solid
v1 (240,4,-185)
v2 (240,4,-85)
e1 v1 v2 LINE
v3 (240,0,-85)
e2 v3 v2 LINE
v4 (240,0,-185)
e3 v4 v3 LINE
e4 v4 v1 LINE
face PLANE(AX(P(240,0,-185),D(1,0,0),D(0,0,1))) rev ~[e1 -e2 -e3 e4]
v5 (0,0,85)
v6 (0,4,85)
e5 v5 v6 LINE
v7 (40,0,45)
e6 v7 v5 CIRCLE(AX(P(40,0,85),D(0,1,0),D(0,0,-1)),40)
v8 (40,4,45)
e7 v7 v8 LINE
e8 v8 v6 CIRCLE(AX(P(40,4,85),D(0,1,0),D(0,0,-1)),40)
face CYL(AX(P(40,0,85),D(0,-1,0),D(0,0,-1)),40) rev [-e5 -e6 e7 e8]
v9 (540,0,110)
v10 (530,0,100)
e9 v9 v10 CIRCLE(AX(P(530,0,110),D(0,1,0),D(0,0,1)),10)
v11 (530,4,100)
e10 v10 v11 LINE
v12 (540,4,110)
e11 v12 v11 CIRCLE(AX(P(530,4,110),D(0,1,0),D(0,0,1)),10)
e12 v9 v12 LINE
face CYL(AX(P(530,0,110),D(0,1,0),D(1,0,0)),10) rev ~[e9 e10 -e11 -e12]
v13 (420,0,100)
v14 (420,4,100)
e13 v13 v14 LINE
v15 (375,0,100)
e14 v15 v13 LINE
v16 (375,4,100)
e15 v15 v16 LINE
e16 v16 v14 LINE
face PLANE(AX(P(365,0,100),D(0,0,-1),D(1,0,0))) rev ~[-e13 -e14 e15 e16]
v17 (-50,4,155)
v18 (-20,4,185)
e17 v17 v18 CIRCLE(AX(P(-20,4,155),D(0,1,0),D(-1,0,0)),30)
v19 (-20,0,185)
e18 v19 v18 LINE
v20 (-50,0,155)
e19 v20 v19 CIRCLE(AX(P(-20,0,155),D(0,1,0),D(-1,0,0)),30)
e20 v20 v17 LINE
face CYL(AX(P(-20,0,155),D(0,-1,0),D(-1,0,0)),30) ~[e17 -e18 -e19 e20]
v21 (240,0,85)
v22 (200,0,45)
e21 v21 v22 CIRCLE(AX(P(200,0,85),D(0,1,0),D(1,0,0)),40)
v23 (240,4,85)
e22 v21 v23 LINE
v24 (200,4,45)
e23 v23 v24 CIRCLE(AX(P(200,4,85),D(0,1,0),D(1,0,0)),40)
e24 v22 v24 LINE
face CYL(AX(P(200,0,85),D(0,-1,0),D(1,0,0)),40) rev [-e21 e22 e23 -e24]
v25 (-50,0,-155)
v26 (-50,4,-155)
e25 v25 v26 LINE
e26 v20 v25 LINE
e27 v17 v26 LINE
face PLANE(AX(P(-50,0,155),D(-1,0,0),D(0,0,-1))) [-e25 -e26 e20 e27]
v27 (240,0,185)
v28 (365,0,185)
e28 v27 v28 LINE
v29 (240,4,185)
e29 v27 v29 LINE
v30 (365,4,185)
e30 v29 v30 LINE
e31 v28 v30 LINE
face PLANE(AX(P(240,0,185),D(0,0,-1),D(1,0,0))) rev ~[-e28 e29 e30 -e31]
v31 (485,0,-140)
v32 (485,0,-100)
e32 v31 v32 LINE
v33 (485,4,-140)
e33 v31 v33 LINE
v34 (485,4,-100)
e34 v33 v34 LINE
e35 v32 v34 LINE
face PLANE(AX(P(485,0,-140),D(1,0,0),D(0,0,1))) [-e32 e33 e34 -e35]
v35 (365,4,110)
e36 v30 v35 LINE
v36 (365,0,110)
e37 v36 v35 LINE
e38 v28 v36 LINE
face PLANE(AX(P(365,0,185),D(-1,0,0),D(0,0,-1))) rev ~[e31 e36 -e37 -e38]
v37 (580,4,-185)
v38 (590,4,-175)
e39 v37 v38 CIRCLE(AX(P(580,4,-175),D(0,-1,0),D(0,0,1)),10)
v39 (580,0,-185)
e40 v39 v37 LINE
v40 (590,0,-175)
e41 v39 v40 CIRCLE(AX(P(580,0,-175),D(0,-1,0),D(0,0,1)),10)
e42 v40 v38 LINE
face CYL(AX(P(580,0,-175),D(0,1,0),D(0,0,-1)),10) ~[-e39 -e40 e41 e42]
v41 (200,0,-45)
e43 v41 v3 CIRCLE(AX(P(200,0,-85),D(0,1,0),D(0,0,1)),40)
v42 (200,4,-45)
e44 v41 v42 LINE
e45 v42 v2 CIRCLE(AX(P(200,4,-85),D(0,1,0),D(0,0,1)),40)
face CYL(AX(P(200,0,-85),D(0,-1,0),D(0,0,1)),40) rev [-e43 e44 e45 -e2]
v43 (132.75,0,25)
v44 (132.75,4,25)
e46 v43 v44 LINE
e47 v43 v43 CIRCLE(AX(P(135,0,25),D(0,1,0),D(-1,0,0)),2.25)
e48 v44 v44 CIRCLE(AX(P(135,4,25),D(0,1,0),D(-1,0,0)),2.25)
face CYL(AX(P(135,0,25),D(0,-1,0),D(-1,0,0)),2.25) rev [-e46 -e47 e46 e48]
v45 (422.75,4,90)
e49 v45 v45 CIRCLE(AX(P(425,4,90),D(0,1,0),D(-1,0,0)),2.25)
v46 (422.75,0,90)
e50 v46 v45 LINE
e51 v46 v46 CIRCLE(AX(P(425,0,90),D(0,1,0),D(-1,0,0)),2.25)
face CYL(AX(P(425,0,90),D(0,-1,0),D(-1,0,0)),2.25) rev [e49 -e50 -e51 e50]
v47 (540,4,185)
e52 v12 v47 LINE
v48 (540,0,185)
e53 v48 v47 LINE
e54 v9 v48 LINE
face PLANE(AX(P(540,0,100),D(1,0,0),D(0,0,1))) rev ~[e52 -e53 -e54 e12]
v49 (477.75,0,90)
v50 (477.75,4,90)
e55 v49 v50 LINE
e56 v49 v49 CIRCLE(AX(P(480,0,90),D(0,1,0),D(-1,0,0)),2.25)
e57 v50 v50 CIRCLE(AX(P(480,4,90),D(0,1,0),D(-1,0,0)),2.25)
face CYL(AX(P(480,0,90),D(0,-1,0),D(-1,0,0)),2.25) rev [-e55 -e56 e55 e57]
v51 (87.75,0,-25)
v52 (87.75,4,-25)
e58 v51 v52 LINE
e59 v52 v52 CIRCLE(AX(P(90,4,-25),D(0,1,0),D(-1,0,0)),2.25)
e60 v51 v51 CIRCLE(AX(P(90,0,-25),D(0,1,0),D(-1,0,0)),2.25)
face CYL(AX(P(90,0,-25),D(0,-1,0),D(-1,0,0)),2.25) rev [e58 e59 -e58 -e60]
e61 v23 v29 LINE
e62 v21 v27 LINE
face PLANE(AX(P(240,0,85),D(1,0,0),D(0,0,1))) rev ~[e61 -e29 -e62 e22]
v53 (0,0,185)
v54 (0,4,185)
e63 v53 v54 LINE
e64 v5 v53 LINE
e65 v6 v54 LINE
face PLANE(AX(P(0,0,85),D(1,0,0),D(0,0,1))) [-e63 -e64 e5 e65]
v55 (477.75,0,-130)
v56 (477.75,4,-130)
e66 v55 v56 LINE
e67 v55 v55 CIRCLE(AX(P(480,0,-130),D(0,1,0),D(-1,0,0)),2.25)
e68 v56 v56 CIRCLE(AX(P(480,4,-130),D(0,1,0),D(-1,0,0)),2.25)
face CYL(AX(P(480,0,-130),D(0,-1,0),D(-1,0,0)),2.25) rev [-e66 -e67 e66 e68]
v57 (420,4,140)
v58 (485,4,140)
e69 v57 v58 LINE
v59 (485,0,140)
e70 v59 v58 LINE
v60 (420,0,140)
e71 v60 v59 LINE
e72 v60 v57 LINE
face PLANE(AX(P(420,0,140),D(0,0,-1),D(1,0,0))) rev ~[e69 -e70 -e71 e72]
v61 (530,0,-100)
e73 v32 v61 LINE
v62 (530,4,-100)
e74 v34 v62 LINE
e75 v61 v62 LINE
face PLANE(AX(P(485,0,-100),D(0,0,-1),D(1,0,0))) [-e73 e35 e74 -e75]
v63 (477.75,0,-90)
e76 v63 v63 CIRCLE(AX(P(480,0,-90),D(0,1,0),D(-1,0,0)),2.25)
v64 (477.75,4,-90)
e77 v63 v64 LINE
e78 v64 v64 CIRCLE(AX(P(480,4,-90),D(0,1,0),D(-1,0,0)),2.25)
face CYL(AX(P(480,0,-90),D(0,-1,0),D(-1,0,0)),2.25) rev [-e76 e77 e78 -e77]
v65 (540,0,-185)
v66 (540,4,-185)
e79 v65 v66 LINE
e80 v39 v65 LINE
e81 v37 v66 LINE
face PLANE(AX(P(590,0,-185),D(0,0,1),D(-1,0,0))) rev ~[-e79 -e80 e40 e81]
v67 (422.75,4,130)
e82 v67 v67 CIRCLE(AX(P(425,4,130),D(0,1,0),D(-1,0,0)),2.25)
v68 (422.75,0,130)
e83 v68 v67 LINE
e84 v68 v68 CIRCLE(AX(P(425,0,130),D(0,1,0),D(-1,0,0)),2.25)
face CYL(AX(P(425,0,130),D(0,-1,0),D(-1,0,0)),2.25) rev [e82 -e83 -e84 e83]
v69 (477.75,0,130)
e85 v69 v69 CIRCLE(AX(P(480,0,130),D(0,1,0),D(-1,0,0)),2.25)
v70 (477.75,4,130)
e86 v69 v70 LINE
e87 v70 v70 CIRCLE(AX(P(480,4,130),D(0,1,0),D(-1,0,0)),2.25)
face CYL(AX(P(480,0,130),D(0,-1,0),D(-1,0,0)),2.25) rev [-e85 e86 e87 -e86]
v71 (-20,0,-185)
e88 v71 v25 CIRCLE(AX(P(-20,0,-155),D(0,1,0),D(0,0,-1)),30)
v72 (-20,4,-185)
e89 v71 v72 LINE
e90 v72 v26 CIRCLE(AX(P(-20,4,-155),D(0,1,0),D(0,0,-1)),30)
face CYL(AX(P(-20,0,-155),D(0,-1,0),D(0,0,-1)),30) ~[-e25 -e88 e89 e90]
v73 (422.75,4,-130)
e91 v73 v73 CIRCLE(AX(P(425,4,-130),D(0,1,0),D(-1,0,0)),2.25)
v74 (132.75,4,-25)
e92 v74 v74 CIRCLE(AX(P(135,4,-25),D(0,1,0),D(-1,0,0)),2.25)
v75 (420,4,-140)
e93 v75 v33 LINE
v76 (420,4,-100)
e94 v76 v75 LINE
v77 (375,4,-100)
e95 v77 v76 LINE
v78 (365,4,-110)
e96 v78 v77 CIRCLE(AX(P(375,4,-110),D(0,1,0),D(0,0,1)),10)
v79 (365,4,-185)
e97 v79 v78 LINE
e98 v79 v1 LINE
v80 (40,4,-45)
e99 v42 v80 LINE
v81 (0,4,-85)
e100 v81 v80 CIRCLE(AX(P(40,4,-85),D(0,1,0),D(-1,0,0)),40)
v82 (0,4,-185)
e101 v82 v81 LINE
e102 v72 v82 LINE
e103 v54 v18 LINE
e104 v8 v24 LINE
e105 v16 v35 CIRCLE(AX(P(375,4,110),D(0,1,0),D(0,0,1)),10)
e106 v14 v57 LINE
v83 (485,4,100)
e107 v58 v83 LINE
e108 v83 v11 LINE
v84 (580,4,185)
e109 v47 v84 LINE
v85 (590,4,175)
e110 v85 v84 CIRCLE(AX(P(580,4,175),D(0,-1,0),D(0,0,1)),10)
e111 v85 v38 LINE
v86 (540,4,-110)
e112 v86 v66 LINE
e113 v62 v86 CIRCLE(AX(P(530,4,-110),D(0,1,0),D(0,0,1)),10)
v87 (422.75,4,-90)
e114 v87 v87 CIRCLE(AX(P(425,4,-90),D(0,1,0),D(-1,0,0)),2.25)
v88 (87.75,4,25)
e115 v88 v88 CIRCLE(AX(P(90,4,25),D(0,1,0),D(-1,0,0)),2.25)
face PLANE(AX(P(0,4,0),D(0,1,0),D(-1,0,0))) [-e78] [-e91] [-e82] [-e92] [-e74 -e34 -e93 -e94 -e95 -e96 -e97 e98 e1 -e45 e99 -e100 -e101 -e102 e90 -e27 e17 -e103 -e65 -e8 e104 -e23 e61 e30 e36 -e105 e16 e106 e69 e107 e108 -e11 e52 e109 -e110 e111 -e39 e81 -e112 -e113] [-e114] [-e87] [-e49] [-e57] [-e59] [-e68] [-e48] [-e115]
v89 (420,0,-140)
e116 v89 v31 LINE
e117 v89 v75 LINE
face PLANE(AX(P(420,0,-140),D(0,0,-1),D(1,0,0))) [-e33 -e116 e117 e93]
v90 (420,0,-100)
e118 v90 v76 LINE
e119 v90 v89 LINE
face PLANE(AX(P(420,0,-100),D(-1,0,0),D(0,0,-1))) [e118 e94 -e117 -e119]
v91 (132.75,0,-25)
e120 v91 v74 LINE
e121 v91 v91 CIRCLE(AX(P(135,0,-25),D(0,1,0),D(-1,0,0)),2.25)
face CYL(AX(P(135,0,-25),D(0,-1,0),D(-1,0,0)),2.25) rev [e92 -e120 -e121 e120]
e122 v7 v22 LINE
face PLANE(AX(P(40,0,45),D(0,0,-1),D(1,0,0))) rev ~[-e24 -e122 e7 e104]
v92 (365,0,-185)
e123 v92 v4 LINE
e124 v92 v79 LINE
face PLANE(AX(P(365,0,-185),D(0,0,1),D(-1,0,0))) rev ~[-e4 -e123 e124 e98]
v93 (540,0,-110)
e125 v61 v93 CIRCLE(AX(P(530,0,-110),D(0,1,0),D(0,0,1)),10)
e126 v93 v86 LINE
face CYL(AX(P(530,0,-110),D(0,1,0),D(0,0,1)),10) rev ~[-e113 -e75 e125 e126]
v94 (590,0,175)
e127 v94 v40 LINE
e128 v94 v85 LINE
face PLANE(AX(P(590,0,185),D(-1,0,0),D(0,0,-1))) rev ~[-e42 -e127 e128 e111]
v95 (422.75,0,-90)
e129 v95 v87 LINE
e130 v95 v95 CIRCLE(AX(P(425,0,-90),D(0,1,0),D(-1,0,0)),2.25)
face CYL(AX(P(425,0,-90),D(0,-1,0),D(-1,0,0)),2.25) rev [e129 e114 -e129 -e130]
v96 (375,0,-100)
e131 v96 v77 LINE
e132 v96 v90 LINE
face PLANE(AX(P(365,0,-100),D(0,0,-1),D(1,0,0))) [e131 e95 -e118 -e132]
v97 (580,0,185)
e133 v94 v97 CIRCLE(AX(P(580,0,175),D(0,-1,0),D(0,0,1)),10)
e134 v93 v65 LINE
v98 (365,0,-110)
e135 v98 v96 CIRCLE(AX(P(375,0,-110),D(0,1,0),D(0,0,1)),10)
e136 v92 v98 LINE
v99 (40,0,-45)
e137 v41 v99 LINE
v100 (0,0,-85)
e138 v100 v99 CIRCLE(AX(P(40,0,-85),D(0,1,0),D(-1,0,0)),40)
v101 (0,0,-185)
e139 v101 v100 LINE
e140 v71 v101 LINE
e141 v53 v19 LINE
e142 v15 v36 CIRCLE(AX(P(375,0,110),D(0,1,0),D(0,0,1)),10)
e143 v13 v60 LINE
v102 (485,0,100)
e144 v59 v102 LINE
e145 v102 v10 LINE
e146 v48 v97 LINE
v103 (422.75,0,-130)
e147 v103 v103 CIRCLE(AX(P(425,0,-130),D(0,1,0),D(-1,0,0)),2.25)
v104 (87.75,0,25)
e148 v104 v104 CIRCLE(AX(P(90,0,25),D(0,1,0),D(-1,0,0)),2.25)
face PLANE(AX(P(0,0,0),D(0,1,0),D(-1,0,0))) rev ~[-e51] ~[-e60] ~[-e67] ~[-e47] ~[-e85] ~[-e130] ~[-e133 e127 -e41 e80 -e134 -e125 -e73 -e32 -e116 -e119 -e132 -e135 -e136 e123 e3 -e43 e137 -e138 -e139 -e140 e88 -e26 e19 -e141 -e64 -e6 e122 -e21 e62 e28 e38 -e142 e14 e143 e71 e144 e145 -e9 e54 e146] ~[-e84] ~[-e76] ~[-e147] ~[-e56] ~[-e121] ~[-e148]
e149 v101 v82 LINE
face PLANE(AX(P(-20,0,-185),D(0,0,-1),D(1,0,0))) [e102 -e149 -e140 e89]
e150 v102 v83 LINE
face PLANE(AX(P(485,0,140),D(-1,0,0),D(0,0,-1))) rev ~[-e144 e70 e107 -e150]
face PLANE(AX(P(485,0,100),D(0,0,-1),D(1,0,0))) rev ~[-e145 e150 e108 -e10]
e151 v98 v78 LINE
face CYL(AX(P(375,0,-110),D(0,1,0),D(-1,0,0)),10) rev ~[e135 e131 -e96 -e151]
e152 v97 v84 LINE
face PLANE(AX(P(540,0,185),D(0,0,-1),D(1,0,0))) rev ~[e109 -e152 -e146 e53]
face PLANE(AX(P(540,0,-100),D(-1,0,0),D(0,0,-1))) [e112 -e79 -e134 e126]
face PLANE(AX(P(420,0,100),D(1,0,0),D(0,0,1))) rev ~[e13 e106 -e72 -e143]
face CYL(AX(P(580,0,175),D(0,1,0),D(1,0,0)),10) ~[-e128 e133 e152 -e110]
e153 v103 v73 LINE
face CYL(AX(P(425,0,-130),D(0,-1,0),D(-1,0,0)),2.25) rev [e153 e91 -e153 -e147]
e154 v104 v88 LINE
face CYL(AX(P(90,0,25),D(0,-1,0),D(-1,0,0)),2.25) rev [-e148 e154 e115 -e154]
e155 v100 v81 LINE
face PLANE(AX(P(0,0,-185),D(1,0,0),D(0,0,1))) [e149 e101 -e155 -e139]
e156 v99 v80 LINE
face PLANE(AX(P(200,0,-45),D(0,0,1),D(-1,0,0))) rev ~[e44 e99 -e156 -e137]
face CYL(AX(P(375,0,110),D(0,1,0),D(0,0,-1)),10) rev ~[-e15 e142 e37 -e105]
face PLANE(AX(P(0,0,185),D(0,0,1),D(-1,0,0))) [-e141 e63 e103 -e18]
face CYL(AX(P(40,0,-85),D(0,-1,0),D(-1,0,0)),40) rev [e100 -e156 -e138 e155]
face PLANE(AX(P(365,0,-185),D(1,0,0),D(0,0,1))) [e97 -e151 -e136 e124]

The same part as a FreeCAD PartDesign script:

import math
import FreeCAD as App
import Part
import Sketcher

V = App.Vector
Q = App.Units.Quantity


def edges_at(feature, points):
    """Names of the edges that pass closest to the given points."""
    edges = feature.Shape.Edges
    near = lambda p: min(range(len(edges)), key=lambda i: edges[i].distToShape(Part.Vertex(*p))[0])
    return sorted({f"Edge{near(p) + 1}" for p in points})

doc = App.newDocument("Part")
body = doc.addObject("PartDesign::Body", "Body")

sketch1 = doc.addObject("Sketcher::SketchObject", "Sketch")
body.addObject(sketch1)
sketch1.AttachmentSupport = (doc.XZ_Plane, [""])
sketch1.MapMode = "FlatFace"
sketch1.addGeometry([
    Part.ArcOfCircle(Part.Circle(V(40, 85, 0), V(0, 0, 1), 40), math.radians(180), math.radians(270)),
    Part.LineSegment(V(40, 45, 0), V(200, 45, 0)),
    Part.ArcOfCircle(Part.Circle(V(200, 85, 0), V(0, 0, 1), 40), math.radians(-90), math.radians(0)),
    Part.LineSegment(V(240, 85, 0), V(240, 185, 0)),
    Part.LineSegment(V(240, 185, 0), V(365, 185, 0)),
    Part.LineSegment(V(365, 185, 0), V(365, 100, 0)),
    Part.LineSegment(V(365, 100, 0), V(420, 100, 0)),
    Part.LineSegment(V(420, 100, 0), V(420, 140, 0)),
    Part.LineSegment(V(420, 140, 0), V(485, 140, 0)),
    Part.LineSegment(V(485, 140, 0), V(485, 100, 0)),
    Part.LineSegment(V(485, 100, 0), V(540, 100, 0)),
    Part.LineSegment(V(540, 100, 0), V(540, 185, 0)),
    Part.LineSegment(V(540, 185, 0), V(590, 185, 0)),
    Part.LineSegment(V(590, 185, 0), V(590, -185, 0)),
    Part.LineSegment(V(590, -185, 0), V(540, -185, 0)),
    Part.LineSegment(V(540, -185, 0), V(540, -100, 0)),
    Part.LineSegment(V(540, -100, 0), V(485, -100, 0)),
    Part.LineSegment(V(485, -100, 0), V(485, -140, 0)),
    Part.LineSegment(V(485, -140, 0), V(420, -140, 0)),
    Part.LineSegment(V(420, -140, 0), V(420, -100, 0)),
    Part.LineSegment(V(420, -100, 0), V(365, -100, 0)),
    Part.LineSegment(V(365, -100, 0), V(365, -185, 0)),
    Part.LineSegment(V(365, -185, 0), V(240, -185, 0)),
    Part.LineSegment(V(240, -185, 0), V(240, -85, 0)),
    Part.ArcOfCircle(Part.Circle(V(200, -85, 0), V(0, 0, 1), 40), math.radians(0), math.radians(90)),
    Part.LineSegment(V(200, -45, 0), V(40, -45, 0)),
    Part.ArcOfCircle(Part.Circle(V(40, -85, 0), V(0, 0, 1), 40), math.radians(90), math.radians(180)),
    Part.LineSegment(V(0, -85, 0), V(0, -185, 0)),
    Part.LineSegment(V(0, -185, 0), V(-20, -185, 0)),
    Part.ArcOfCircle(Part.Circle(V(-20, -155, 0), V(0, 0, 1), 30), math.radians(180), math.radians(270)),
    Part.LineSegment(V(-50, -155, 0), V(-50, 155, 0)),
    Part.ArcOfCircle(Part.Circle(V(-20, 155, 0), V(0, 0, 1), 30), math.radians(90), math.radians(180)),
    Part.LineSegment(V(-20, 185, 0), V(0, 185, 0)),
    Part.LineSegment(V(0, 185, 0), V(0, 85, 0)),
    Part.Circle(V(480, -130, 0), V(0, 0, 1), 2.2),
    Part.Circle(V(425, -130, 0), V(0, 0, 1), 2.2),
    Part.Circle(V(480, -90, 0), V(0, 0, 1), 2.2),
    Part.Circle(V(425, -90, 0), V(0, 0, 1), 2.2),
    Part.Circle(V(135, -25, 0), V(0, 0, 1), 2.2),
    Part.Circle(V(90, -25, 0), V(0, 0, 1), 2.2),
    Part.Circle(V(480, 90, 0), V(0, 0, 1), 2.2),
    Part.Circle(V(425, 90, 0), V(0, 0, 1), 2.2),
    Part.Circle(V(480, 130, 0), V(0, 0, 1), 2.2),
    Part.Circle(V(425, 130, 0), V(0, 0, 1), 2.2),
    Part.Circle(V(135, 25, 0), V(0, 0, 1), 2.2),
    Part.Circle(V(90, 25, 0), V(0, 0, 1), 2.2),
], False)
sketch1.addConstraint([
    Sketcher.Constraint("Tangent", 0, 2, 1, 1),
    Sketcher.Constraint("Tangent", 1, 2, 2, 1),
    Sketcher.Constraint("Tangent", 2, 2, 3, 1),
    Sketcher.Constraint("Coincident", 3, 2, 4, 1),
    Sketcher.Constraint("Coincident", 4, 2, 5, 1),
    Sketcher.Constraint("Coincident", 5, 2, 6, 1),
    Sketcher.Constraint("Coincident", 6, 2, 7, 1),
    Sketcher.Constraint("Coincident", 7, 2, 8, 1),
    Sketcher.Constraint("Coincident", 8, 2, 9, 1),
    Sketcher.Constraint("Coincident", 9, 2, 10, 1),
    Sketcher.Constraint("Coincident", 10, 2, 11, 1),
    Sketcher.Constraint("Coincident", 11, 2, 12, 1),
    Sketcher.Constraint("Coincident", 12, 2, 13, 1),
    Sketcher.Constraint("Coincident", 13, 2, 14, 1),
    Sketcher.Constraint("Coincident", 14, 2, 15, 1),
    Sketcher.Constraint("Coincident", 15, 2, 16, 1),
    Sketcher.Constraint("Coincident", 16, 2, 17, 1),
    Sketcher.Constraint("Coincident", 17, 2, 18, 1),
    Sketcher.Constraint("Coincident", 18, 2, 19, 1),
    Sketcher.Constraint("Coincident", 19, 2, 20, 1),
    Sketcher.Constraint("Coincident", 20, 2, 21, 1),
    Sketcher.Constraint("Coincident", 21, 2, 22, 1),
    Sketcher.Constraint("Coincident", 22, 2, 23, 1),
    Sketcher.Constraint("Tangent", 23, 2, 24, 1),
    Sketcher.Constraint("Tangent", 24, 2, 25, 1),
    Sketcher.Constraint("Tangent", 25, 2, 26, 1),
    Sketcher.Constraint("Tangent", 26, 2, 27, 1),
    Sketcher.Constraint("Coincident", 27, 2, 28, 1),
    Sketcher.Constraint("Tangent", 28, 2, 29, 2),
    Sketcher.Constraint("Tangent", 29, 1, 30, 1),
    Sketcher.Constraint("Tangent", 30, 2, 31, 2),
    Sketcher.Constraint("Tangent", 31, 1, 32, 1),
    Sketcher.Constraint("Coincident", 32, 2, 33, 1),
    Sketcher.Constraint("Tangent", 33, 2, 0, 1),
    Sketcher.Constraint("Horizontal", 1),
    Sketcher.Constraint("Vertical", 3),
    Sketcher.Constraint("Horizontal", 4),
    Sketcher.Constraint("Vertical", 5),
    Sketcher.Constraint("Horizontal", 6),
    Sketcher.Constraint("Vertical", 7),
    Sketcher.Constraint("Horizontal", 8),
    Sketcher.Constraint("Vertical", 9),
    Sketcher.Constraint("Horizontal", 10),
    Sketcher.Constraint("Vertical", 11),
    Sketcher.Constraint("Horizontal", 12),
    Sketcher.Constraint("Vertical", 13),
    Sketcher.Constraint("Horizontal", 14),
    Sketcher.Constraint("Vertical", 15),
    Sketcher.Constraint("Horizontal", 16),
    Sketcher.Constraint("Vertical", 17),
    Sketcher.Constraint("Horizontal", 18),
    Sketcher.Constraint("Vertical", 19),
    Sketcher.Constraint("Horizontal", 20),
    Sketcher.Constraint("Vertical", 21),
    Sketcher.Constraint("Horizontal", 22),
    Sketcher.Constraint("Vertical", 23),
    Sketcher.Constraint("Horizontal", 25),
    Sketcher.Constraint("Vertical", 27),
    Sketcher.Constraint("Horizontal", 28),
    Sketcher.Constraint("Vertical", 30),
    Sketcher.Constraint("Horizontal", 32),
    Sketcher.Constraint("Vertical", 33),
    Sketcher.Constraint("Equal", 0, 2),
    Sketcher.Constraint("Equal", 2, 24),
    Sketcher.Constraint("Equal", 24, 26),
    Sketcher.Constraint("Equal", 29, 31),
    Sketcher.Constraint("Equal", 34, 35),
    Sketcher.Constraint("Equal", 35, 36),
    Sketcher.Constraint("Equal", 36, 37),
    Sketcher.Constraint("Equal", 37, 38),
    Sketcher.Constraint("Equal", 38, 39),
    Sketcher.Constraint("Equal", 39, 40),
    Sketcher.Constraint("Equal", 40, 41),
    Sketcher.Constraint("Equal", 41, 42),
    Sketcher.Constraint("Equal", 42, 43),
    Sketcher.Constraint("Equal", 43, 44),
    Sketcher.Constraint("Equal", 44, 45),
    Sketcher.Constraint("Symmetric", 27, 2, 32, 2, -1, 1),
    Sketcher.Constraint("Symmetric", 2, 3, 24, 3, -1),
    Sketcher.Constraint("Symmetric", 36, 3, 40, 3, -1),
    Sketcher.Constraint("Symmetric", 37, 3, 41, 3, -1),
    Sketcher.Constraint("Symmetric", 34, 3, 42, 3, -1),
    Sketcher.Constraint("Symmetric", 35, 3, 43, 3, -1),
    Sketcher.Constraint("Symmetric", 38, 3, 44, 3, -1),
    Sketcher.Constraint("Symmetric", 39, 3, 45, 3, -1),
    Sketcher.Constraint("Symmetric", 11, 2, 14, 2, -1),
    Sketcher.Constraint("Symmetric", 9, 2, 16, 2, -1),
    Sketcher.Constraint("Symmetric", 7, 2, 18, 2, -1),
    Sketcher.Constraint("Symmetric", 5, 2, 20, 2, -1),
    Sketcher.Constraint("PointOnObject", 26, 2, -2),
    Sketcher.Constraint("Horizontal", 34, 3, 35, 3),
    Sketcher.Constraint("Horizontal", 36, 3, 37, 3),
    Sketcher.Constraint("Horizontal", 38, 3, 39, 3),
    Sketcher.Constraint("Horizontal", 6, 2, 9, 2),
    Sketcher.Constraint("Horizontal", 4, 2, 11, 2),
    Sketcher.Constraint("Horizontal", 14, 2, 21, 2),
    Sketcher.Constraint("Horizontal", 22, 2, 27, 2),
    Sketcher.Constraint("Vertical", 34, 3, 36, 3),
    Sketcher.Constraint("Vertical", 35, 3, 37, 3),
    Sketcher.Constraint("Equal", 6, 10),
    Sketcher.Constraint("Radius", 0, Q("40 mm")),
    Sketcher.Constraint("Radius", 29, Q("30 mm")),
    Sketcher.Constraint("Diameter", 34, Q("4.5 mm")),
    Sketcher.Constraint("DistanceX", 6, 1, 6, 2, Q("55 mm")),
    Sketcher.Constraint("DistanceX", 8, 1, 8, 2, Q("65 mm")),
    Sketcher.Constraint("DistanceX", 12, 1, 12, 2, Q("50 mm")),
    Sketcher.Constraint("DistanceY", 5, 2, 5, 1, Q("85 mm")),
    Sketcher.Constraint("DistanceY", 7, 1, 7, 2, Q("40 mm")),
    Sketcher.Constraint("DistanceY", 13, 2, 13, 1, Q("370 mm")),
    Sketcher.Constraint("DistanceY", -1, 1, 0, 3, Q("85 mm")),
    Sketcher.Constraint("DistanceY", 36, 3, -1, 1, Q("90 mm")),
    Sketcher.Constraint("DistanceY", 38, 3, -1, 1, Q("25 mm")),
    Sketcher.Constraint("DistanceX", -1, 1, 39, 3, Q("90 mm")),
    Sketcher.Constraint("DistanceX", -1, 1, 2, 2, Q("240 mm")),
    Sketcher.Constraint("DistanceX", 29, 1, -1, 1, Q("50 mm")),
    Sketcher.Constraint("DistanceY", 34, 3, 24, 3, Q("45 mm")),
    Sketcher.Constraint("DistanceX", 35, 3, 34, 3, Q("55 mm")),
    Sketcher.Constraint("DistanceX", 38, 3, 24, 3, Q("65 mm")),
    Sketcher.Constraint("DistanceX", 4, 1, 4, 2, Q("125 mm")),
    Sketcher.Constraint("DistanceX", -1, 1, 34, 3, Q("480 mm")),
])
pad1 = doc.addObject("PartDesign::Pad", "Pad")
body.addObject(pad1)
pad1.Profile = sketch1
pad1.Length = 4
pad1.Reversed = True
doc.recompute()

fillet = doc.addObject("PartDesign::Fillet", "Fillet")
body.addObject(fillet)
fillet.Base = (pad1, edges_at(pad1, [
    (365, 2, 100),
    (540, 2, 100),
    (540, 2, -100),
    (365, 2, -100),
]))
fillet.Radius = 10
doc.recompute()

fillet2 = doc.addObject("PartDesign::Fillet", "Fillet001")
body.addObject(fillet2)
fillet2.Base = (fillet, edges_at(fillet, [(590, 2, -185), (590, 2, 185)]))
fillet2.Radius = 10

doc.recompute()
